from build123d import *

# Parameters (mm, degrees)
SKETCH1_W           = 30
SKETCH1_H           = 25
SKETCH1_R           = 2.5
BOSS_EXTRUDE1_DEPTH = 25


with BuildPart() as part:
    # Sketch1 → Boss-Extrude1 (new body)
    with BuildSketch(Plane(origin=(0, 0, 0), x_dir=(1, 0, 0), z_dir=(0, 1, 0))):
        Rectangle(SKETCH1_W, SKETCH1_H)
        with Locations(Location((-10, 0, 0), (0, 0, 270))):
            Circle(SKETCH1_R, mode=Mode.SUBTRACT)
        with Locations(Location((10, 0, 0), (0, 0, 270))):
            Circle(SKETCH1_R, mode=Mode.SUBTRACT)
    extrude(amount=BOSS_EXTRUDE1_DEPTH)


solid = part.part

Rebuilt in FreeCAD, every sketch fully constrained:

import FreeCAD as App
import Part
import Sketcher
Q = App.Units.Quantity


def add_polygon(sketch, points):
    """Adds a closed chain of lines whose ends are joined by coincident constraints."""
    first, n = sketch.GeometryCount, len(points)
    for a, b in zip(points, points[1:] + points[:1]):
        sketch.addGeometry(Part.LineSegment(App.Vector(*a, 0), App.Vector(*b, 0)), False)
    for i in range(n):
        sketch.addConstraint(Sketcher.Constraint("Coincident", first + i, 2, first + (i + 1) % n, 1))

doc = App.newDocument("Part")
body = doc.addObject("PartDesign::Body", "Body")

sketch1 = body.newObject("Sketcher::SketchObject", "Sketch")
sketch1.AttachmentSupport = (doc.getObject("XZ_Plane"), [""])
sketch1.MapMode = "FlatFace"
add_polygon(sketch1, [(-15, -12.5), (-15, 12.5), (15, 12.5), (15, -12.5)])
sketch1.addGeometry(Part.Circle(App.Vector(-10, 0, 0), App.Vector(0, 0, 1), 2.5), False)
sketch1.addGeometry(Part.Circle(App.Vector(10, 0, 0), App.Vector(0, 0, 1), 2.5), False)
sketch1.addConstraint([
    Sketcher.Constraint("Vertical", 0),
    Sketcher.Constraint("Horizontal", 1),
    Sketcher.Constraint("Vertical", 2),
    Sketcher.Constraint("Horizontal", 3),
    Sketcher.Constraint("Equal", 4, 5),
    Sketcher.Constraint("Symmetric", 4, 3, 5, 3, -1, 1),
    Sketcher.Constraint("Symmetric", 0, 2, 2, 2, -1, 1),
    Sketcher.Constraint("PointOnObject", 4, 3, -1),
    Sketcher.Constraint("Diameter", 4, Q("5 mm")),
    Sketcher.Constraint("DistanceX", 1, 1, 1, 2, Q("30 mm")),
    Sketcher.Constraint("DistanceY", 0, 1, 0, 2, Q("25 mm")),
    Sketcher.Constraint("DistanceX", 4, 3, -1, 1, Q("10 mm")),
])
pad1 = body.newObject("PartDesign::Pad", "Pad")
pad1.Profile = sketch1
pad1.Length = 25
pad1.Reversed = True

doc.recompute()
